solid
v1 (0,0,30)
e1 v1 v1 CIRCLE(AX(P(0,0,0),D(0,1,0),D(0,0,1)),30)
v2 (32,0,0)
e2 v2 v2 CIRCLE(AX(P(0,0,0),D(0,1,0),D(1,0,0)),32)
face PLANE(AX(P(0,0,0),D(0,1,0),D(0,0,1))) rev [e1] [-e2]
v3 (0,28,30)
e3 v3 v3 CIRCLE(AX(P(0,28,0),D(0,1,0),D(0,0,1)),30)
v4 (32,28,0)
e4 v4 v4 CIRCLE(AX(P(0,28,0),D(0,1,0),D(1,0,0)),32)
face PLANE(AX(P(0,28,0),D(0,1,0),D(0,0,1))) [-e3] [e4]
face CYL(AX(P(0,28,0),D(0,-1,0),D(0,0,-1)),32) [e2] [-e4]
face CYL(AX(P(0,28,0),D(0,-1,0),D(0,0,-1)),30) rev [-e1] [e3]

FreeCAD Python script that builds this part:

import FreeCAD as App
import Part
import Sketcher
from FreeCAD import Vector

doc = App.newDocument("Part")
body = doc.addObject("PartDesign::Body", "Body")

# Sketch on XZ plane
sketch1 = body.newObject("Sketcher::SketchObject", "Sketch")
sketch1.AttachmentSupport = (doc.getObject("XZ_Plane"), [""])
sketch1.MapMode = "FlatFace"
sketch1.addGeometry(Part.Circle(Vector(0, 0, 0), Vector(0, 0, 1), 32), False)
sketch1.addGeometry(Part.Circle(Vector(0, 0, 0), Vector(0, 0, 1), 30), False)
sketch1.addConstraint(Sketcher.Constraint("Coincident", 0, 3, -1, 1))
sketch1.addConstraint(Sketcher.Constraint("Coincident", 1, 3, -1, 1))
sketch1.addConstraint(Sketcher.Constraint("Diameter", 0, 64.0))
sketch1.addConstraint(Sketcher.Constraint("Diameter", 1, 60.0))
pad1 = body.newObject("PartDesign::Pad", "Pad")
pad1.Profile = sketch1
pad1.Length = 28
pad1.Reversed = True

doc.recompute()
